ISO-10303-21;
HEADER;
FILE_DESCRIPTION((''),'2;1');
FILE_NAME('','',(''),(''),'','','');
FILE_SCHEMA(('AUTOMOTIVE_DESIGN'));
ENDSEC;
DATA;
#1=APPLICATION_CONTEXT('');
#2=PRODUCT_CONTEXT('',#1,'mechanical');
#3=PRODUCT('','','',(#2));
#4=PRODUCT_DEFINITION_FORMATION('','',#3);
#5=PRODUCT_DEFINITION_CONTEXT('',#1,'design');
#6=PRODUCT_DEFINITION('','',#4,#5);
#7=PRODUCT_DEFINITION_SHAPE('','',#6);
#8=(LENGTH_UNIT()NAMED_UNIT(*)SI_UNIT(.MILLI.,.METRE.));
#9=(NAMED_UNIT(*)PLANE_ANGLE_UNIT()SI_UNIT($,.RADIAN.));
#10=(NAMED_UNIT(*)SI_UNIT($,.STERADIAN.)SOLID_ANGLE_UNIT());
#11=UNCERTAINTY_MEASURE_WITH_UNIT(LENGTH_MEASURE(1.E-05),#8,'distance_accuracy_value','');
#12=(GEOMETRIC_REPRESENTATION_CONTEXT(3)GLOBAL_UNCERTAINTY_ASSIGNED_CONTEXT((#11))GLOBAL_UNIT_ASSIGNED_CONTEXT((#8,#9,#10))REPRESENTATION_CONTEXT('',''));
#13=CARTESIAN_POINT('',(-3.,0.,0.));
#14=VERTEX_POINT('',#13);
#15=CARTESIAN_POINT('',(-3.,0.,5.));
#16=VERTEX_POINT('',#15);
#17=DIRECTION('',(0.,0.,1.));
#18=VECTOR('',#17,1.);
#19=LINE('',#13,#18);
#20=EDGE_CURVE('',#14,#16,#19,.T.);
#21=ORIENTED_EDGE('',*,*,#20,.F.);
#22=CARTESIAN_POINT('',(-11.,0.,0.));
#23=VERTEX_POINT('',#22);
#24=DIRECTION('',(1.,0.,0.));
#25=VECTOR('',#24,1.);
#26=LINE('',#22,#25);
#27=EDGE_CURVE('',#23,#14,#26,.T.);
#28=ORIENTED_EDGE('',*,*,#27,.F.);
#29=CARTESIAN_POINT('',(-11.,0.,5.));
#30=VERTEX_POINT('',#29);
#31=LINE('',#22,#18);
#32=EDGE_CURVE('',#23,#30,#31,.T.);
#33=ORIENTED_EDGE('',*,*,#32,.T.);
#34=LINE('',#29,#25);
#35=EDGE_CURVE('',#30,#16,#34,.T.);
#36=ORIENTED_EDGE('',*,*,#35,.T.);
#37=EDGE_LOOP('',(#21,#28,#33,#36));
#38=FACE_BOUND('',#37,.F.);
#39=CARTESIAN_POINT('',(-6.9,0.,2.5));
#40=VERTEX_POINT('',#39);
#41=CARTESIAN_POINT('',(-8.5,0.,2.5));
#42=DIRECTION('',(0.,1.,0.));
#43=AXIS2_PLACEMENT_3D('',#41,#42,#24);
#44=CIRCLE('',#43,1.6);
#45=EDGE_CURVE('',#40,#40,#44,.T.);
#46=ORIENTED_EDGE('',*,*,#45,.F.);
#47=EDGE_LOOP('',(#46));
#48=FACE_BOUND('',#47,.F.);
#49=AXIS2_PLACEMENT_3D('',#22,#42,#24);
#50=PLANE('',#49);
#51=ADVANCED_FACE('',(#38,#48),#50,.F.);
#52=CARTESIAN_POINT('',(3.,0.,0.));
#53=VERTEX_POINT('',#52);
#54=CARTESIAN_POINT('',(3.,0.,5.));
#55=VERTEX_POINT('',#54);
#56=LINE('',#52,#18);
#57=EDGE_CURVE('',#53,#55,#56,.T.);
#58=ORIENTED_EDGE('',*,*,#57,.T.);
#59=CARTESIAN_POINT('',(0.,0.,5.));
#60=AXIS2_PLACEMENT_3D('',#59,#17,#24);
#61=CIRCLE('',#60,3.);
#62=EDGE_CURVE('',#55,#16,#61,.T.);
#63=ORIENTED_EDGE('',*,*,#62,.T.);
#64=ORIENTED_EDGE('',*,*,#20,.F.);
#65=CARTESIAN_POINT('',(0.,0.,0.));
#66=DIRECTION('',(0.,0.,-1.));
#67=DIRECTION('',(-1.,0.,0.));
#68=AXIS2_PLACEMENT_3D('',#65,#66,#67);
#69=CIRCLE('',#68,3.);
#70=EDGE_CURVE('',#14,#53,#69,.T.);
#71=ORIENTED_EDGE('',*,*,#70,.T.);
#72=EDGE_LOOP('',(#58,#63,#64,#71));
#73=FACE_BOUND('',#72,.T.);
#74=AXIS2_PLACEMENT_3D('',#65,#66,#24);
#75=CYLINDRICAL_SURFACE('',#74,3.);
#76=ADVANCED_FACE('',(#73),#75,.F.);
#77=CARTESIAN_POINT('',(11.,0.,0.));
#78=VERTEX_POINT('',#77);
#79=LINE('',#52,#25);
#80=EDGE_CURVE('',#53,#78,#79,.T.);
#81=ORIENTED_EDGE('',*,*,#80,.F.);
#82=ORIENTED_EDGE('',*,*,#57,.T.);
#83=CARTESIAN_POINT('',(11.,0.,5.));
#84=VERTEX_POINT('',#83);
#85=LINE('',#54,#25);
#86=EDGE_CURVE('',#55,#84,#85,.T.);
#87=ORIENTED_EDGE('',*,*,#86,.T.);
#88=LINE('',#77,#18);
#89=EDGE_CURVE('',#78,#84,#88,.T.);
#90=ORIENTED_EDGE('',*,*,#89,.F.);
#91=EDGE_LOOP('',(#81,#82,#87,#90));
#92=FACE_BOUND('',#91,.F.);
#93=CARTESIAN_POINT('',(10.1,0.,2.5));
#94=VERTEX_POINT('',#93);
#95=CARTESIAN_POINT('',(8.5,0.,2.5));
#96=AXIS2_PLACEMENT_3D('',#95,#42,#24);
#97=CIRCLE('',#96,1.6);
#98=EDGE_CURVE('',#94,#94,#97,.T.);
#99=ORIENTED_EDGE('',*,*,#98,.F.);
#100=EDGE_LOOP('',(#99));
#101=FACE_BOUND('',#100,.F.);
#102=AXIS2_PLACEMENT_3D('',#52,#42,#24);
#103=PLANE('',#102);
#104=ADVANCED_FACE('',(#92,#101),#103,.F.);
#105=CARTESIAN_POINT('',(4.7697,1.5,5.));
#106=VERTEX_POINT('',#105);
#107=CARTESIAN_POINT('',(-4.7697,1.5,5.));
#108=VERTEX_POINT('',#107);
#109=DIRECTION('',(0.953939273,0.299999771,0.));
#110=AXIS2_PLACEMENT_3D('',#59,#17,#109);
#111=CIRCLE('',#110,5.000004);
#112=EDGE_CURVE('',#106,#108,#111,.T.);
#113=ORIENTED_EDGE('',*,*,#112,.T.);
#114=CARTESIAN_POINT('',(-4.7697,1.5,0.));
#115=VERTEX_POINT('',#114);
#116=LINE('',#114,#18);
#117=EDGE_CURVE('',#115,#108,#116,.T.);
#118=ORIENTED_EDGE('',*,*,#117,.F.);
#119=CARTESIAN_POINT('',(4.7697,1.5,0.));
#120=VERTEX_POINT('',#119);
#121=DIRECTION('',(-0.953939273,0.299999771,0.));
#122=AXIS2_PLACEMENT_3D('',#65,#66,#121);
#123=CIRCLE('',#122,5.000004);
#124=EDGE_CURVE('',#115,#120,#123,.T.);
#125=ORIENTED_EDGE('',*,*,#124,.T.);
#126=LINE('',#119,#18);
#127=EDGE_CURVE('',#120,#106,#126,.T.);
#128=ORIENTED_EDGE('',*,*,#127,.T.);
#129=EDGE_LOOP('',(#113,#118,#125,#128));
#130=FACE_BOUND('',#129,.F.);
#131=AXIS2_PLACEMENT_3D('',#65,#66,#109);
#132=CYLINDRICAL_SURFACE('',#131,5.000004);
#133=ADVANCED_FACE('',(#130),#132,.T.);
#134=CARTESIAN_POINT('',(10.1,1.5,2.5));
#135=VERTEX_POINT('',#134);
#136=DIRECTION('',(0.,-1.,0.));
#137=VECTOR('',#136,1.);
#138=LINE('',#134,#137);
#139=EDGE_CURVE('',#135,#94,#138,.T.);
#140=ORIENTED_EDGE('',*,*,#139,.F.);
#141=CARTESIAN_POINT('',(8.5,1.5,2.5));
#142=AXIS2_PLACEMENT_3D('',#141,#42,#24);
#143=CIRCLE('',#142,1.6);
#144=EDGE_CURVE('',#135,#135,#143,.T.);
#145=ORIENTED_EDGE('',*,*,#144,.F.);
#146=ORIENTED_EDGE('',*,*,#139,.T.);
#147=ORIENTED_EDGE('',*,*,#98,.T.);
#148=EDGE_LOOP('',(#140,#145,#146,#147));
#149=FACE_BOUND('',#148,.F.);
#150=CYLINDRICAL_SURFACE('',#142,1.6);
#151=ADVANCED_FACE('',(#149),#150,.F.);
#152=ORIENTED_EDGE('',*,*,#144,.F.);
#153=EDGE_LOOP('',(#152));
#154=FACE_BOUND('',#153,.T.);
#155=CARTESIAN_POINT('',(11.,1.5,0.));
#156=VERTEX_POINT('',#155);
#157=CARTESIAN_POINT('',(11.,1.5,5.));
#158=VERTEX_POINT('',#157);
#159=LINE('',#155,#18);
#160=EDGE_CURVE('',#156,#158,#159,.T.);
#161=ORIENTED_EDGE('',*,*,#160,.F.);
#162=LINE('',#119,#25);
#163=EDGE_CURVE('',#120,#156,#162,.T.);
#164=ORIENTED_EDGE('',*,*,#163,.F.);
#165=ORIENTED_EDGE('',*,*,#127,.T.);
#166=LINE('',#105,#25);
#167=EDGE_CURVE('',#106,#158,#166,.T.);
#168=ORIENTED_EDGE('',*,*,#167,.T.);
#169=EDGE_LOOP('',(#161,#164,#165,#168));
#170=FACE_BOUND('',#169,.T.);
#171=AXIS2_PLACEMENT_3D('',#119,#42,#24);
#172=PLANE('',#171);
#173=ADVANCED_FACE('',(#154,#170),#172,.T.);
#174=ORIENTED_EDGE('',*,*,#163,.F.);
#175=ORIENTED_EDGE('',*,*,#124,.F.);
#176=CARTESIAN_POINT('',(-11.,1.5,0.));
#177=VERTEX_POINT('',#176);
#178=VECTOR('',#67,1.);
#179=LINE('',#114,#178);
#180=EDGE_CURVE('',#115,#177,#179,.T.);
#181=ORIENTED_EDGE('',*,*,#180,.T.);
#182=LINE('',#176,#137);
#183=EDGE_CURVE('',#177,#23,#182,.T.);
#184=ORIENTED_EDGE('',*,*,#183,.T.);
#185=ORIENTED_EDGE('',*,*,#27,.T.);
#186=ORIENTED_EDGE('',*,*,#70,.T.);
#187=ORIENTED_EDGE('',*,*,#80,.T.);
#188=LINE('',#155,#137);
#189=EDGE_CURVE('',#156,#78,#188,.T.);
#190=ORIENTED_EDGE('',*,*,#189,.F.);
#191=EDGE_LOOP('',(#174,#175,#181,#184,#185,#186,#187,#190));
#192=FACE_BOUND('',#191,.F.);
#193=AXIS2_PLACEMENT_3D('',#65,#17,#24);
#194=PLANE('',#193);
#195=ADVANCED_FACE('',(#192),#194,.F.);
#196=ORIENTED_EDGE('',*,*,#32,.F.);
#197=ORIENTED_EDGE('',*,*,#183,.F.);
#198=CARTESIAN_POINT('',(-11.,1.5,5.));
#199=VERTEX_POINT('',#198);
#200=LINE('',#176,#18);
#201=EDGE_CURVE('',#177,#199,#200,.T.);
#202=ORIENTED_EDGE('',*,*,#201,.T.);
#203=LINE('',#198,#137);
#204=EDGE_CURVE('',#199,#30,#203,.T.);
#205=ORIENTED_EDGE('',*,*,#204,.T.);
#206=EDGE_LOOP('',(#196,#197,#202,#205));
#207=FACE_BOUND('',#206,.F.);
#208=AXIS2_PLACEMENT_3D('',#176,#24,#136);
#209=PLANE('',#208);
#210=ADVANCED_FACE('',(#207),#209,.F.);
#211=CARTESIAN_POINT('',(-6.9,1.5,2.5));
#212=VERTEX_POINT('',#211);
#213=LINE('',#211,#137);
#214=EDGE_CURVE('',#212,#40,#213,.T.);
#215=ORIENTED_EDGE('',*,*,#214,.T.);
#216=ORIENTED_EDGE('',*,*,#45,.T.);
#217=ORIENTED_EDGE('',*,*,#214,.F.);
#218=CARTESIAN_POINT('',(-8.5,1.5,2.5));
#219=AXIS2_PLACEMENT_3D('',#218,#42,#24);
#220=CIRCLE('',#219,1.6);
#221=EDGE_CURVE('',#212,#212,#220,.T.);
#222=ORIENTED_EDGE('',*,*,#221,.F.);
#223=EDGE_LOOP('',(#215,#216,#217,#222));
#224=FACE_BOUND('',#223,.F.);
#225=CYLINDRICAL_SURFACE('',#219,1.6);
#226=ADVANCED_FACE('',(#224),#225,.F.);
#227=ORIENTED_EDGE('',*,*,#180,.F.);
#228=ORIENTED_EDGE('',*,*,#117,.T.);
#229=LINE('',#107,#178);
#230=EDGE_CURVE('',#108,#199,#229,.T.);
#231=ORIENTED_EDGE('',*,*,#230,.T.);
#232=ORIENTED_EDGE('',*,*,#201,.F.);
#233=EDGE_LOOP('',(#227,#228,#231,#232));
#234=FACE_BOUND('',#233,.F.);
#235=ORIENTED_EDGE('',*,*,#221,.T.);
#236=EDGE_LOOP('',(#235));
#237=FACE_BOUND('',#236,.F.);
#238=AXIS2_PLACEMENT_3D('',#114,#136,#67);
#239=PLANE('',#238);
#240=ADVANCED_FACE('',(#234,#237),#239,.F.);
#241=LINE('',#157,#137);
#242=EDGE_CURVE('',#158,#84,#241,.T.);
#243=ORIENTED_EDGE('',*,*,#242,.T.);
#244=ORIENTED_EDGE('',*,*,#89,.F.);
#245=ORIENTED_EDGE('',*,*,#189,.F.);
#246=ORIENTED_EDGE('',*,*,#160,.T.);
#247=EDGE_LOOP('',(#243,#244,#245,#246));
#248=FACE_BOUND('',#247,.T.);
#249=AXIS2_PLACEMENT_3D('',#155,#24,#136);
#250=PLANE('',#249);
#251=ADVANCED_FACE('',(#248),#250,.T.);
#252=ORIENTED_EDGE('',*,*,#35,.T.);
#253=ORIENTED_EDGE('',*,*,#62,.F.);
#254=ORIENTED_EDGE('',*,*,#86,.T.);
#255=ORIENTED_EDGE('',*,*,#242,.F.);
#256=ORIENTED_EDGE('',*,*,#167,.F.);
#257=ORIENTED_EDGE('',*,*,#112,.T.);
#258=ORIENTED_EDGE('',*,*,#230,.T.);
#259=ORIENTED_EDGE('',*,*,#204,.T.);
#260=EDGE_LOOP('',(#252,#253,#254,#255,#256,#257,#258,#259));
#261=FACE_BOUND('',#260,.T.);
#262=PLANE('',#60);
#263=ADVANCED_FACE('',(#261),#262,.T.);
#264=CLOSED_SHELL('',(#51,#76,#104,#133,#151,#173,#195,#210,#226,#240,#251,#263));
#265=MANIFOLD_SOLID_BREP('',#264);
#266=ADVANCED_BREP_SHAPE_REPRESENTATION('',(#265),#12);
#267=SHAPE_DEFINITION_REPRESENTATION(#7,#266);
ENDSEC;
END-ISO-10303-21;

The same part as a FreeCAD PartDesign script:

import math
import FreeCAD as App
import Part
import Sketcher
from FreeCAD import Vector

doc = App.newDocument("Part")
body = doc.addObject("PartDesign::Body", "Body")

# Sketch on XY plane
sketch1 = body.newObject("Sketcher::SketchObject", "Sketch")
sketch1.AttachmentSupport = (doc.getObject("XY_Plane"), [""])
sketch1.MapMode = "FlatFace"
sketch1.addGeometry([
    Part.LineSegment(Vector(3, 0, 0), Vector(11, 0, 0)),  # 0
    Part.LineSegment(Vector(11, 0, 0), Vector(11, 1.5, 0)),  # 1
    Part.LineSegment(Vector(11, 1.5, 0), Vector(4.8, 1.5, 0)),  # 2
    Part.ArcOfCircle(Part.Circle(Vector(0, 0, 0), Vector(0, 0, 1), 5), math.radians(17), math.radians(163)),  # 3
    Part.LineSegment(Vector(-4.8, 1.5, 0), Vector(-11, 1.5, 0)),  # 4
    Part.LineSegment(Vector(-11, 1.5, 0), Vector(-11, 0, 0)),  # 5
    Part.LineSegment(Vector(-11, 0, 0), Vector(-3, 0, 0)),  # 6
    Part.ArcOfCircle(Part.Circle(Vector(0, 0, 0), Vector(0, 0, 1), 3), math.radians(0), math.radians(180)),  # 7
], False)
sketch1.addConstraint([
    Sketcher.Constraint("Coincident", 0, 2, 1, 1),
    Sketcher.Constraint("Coincident", 1, 2, 2, 1),
    Sketcher.Constraint("Coincident", 2, 2, 3, 1),
    Sketcher.Constraint("Coincident", 3, 2, 4, 1),
    Sketcher.Constraint("Coincident", 4, 2, 5, 1),
    Sketcher.Constraint("Coincident", 5, 2, 6, 1),
    Sketcher.Constraint("Coincident", 6, 2, 7, 2),
    Sketcher.Constraint("Coincident", 7, 1, 0, 1),
    Sketcher.Constraint("Horizontal", 0),
    Sketcher.Constraint("Vertical", 1),
    Sketcher.Constraint("Horizontal", 2),
    Sketcher.Constraint("Horizontal", 4),
    Sketcher.Constraint("Vertical", 5),
    Sketcher.Constraint("Horizontal", 6),
    Sketcher.Constraint("Coincident", 3, 3, -1, 1),
    Sketcher.Constraint("Coincident", 7, 3, -1, 1),
    Sketcher.Constraint("Symmetric", 0, 2, 5, 2, -1, 1),
    Sketcher.Constraint("PointOnObject", 0, 2, -1),
    Sketcher.Constraint("Horizontal", 2, 2, 3, 2),
    Sketcher.Constraint("Radius", 7, 3.0),
    Sketcher.Constraint("DistanceX", 0, 1, 0, 2, 8.0),
    Sketcher.Constraint("DistanceY", 1, 1, 1, 2, 1.5),
    Sketcher.Constraint("Radius", 3, 5.0),
])
pad1 = body.newObject("PartDesign::Pad", "Pad")
pad1.Profile = sketch1
pad1.Length = 5

# Sketch on XZ plane
sketch2 = body.newObject("Sketcher::SketchObject", "Sketch001")
sketch2.AttachmentSupport = (doc.getObject("XZ_Plane"), [""])
sketch2.MapMode = "FlatFace"
sketch2.AttachmentOffset = App.Placement(Vector(0, 0, -1.5), App.Rotation())
sketch2.addGeometry([
    Part.Circle(Vector(-8.5, 2.5, 0), Vector(0, 0, 1), 1.6),
    Part.Circle(Vector(8.5, 2.5, 0), Vector(0, 0, 1), 1.6),
], False)
sketch2.addConstraint([
    Sketcher.Constraint("Equal", 0, 1),
    Sketcher.Constraint("Symmetric", 0, 3, 1, 3, -2),
    Sketcher.Constraint("Diameter", 0, 3.2),
    Sketcher.Constraint("DistanceX", 0, 3, 1, 3, 17.0),
    Sketcher.Constraint("DistanceY", -1, 1, 0, 3, 2.5),
])
pocket1 = body.newObject("PartDesign::Pocket", "Pocket")
pocket1.Profile = sketch2
pocket1.Length = 5
pocket1.Reversed = True

doc.recompute()
